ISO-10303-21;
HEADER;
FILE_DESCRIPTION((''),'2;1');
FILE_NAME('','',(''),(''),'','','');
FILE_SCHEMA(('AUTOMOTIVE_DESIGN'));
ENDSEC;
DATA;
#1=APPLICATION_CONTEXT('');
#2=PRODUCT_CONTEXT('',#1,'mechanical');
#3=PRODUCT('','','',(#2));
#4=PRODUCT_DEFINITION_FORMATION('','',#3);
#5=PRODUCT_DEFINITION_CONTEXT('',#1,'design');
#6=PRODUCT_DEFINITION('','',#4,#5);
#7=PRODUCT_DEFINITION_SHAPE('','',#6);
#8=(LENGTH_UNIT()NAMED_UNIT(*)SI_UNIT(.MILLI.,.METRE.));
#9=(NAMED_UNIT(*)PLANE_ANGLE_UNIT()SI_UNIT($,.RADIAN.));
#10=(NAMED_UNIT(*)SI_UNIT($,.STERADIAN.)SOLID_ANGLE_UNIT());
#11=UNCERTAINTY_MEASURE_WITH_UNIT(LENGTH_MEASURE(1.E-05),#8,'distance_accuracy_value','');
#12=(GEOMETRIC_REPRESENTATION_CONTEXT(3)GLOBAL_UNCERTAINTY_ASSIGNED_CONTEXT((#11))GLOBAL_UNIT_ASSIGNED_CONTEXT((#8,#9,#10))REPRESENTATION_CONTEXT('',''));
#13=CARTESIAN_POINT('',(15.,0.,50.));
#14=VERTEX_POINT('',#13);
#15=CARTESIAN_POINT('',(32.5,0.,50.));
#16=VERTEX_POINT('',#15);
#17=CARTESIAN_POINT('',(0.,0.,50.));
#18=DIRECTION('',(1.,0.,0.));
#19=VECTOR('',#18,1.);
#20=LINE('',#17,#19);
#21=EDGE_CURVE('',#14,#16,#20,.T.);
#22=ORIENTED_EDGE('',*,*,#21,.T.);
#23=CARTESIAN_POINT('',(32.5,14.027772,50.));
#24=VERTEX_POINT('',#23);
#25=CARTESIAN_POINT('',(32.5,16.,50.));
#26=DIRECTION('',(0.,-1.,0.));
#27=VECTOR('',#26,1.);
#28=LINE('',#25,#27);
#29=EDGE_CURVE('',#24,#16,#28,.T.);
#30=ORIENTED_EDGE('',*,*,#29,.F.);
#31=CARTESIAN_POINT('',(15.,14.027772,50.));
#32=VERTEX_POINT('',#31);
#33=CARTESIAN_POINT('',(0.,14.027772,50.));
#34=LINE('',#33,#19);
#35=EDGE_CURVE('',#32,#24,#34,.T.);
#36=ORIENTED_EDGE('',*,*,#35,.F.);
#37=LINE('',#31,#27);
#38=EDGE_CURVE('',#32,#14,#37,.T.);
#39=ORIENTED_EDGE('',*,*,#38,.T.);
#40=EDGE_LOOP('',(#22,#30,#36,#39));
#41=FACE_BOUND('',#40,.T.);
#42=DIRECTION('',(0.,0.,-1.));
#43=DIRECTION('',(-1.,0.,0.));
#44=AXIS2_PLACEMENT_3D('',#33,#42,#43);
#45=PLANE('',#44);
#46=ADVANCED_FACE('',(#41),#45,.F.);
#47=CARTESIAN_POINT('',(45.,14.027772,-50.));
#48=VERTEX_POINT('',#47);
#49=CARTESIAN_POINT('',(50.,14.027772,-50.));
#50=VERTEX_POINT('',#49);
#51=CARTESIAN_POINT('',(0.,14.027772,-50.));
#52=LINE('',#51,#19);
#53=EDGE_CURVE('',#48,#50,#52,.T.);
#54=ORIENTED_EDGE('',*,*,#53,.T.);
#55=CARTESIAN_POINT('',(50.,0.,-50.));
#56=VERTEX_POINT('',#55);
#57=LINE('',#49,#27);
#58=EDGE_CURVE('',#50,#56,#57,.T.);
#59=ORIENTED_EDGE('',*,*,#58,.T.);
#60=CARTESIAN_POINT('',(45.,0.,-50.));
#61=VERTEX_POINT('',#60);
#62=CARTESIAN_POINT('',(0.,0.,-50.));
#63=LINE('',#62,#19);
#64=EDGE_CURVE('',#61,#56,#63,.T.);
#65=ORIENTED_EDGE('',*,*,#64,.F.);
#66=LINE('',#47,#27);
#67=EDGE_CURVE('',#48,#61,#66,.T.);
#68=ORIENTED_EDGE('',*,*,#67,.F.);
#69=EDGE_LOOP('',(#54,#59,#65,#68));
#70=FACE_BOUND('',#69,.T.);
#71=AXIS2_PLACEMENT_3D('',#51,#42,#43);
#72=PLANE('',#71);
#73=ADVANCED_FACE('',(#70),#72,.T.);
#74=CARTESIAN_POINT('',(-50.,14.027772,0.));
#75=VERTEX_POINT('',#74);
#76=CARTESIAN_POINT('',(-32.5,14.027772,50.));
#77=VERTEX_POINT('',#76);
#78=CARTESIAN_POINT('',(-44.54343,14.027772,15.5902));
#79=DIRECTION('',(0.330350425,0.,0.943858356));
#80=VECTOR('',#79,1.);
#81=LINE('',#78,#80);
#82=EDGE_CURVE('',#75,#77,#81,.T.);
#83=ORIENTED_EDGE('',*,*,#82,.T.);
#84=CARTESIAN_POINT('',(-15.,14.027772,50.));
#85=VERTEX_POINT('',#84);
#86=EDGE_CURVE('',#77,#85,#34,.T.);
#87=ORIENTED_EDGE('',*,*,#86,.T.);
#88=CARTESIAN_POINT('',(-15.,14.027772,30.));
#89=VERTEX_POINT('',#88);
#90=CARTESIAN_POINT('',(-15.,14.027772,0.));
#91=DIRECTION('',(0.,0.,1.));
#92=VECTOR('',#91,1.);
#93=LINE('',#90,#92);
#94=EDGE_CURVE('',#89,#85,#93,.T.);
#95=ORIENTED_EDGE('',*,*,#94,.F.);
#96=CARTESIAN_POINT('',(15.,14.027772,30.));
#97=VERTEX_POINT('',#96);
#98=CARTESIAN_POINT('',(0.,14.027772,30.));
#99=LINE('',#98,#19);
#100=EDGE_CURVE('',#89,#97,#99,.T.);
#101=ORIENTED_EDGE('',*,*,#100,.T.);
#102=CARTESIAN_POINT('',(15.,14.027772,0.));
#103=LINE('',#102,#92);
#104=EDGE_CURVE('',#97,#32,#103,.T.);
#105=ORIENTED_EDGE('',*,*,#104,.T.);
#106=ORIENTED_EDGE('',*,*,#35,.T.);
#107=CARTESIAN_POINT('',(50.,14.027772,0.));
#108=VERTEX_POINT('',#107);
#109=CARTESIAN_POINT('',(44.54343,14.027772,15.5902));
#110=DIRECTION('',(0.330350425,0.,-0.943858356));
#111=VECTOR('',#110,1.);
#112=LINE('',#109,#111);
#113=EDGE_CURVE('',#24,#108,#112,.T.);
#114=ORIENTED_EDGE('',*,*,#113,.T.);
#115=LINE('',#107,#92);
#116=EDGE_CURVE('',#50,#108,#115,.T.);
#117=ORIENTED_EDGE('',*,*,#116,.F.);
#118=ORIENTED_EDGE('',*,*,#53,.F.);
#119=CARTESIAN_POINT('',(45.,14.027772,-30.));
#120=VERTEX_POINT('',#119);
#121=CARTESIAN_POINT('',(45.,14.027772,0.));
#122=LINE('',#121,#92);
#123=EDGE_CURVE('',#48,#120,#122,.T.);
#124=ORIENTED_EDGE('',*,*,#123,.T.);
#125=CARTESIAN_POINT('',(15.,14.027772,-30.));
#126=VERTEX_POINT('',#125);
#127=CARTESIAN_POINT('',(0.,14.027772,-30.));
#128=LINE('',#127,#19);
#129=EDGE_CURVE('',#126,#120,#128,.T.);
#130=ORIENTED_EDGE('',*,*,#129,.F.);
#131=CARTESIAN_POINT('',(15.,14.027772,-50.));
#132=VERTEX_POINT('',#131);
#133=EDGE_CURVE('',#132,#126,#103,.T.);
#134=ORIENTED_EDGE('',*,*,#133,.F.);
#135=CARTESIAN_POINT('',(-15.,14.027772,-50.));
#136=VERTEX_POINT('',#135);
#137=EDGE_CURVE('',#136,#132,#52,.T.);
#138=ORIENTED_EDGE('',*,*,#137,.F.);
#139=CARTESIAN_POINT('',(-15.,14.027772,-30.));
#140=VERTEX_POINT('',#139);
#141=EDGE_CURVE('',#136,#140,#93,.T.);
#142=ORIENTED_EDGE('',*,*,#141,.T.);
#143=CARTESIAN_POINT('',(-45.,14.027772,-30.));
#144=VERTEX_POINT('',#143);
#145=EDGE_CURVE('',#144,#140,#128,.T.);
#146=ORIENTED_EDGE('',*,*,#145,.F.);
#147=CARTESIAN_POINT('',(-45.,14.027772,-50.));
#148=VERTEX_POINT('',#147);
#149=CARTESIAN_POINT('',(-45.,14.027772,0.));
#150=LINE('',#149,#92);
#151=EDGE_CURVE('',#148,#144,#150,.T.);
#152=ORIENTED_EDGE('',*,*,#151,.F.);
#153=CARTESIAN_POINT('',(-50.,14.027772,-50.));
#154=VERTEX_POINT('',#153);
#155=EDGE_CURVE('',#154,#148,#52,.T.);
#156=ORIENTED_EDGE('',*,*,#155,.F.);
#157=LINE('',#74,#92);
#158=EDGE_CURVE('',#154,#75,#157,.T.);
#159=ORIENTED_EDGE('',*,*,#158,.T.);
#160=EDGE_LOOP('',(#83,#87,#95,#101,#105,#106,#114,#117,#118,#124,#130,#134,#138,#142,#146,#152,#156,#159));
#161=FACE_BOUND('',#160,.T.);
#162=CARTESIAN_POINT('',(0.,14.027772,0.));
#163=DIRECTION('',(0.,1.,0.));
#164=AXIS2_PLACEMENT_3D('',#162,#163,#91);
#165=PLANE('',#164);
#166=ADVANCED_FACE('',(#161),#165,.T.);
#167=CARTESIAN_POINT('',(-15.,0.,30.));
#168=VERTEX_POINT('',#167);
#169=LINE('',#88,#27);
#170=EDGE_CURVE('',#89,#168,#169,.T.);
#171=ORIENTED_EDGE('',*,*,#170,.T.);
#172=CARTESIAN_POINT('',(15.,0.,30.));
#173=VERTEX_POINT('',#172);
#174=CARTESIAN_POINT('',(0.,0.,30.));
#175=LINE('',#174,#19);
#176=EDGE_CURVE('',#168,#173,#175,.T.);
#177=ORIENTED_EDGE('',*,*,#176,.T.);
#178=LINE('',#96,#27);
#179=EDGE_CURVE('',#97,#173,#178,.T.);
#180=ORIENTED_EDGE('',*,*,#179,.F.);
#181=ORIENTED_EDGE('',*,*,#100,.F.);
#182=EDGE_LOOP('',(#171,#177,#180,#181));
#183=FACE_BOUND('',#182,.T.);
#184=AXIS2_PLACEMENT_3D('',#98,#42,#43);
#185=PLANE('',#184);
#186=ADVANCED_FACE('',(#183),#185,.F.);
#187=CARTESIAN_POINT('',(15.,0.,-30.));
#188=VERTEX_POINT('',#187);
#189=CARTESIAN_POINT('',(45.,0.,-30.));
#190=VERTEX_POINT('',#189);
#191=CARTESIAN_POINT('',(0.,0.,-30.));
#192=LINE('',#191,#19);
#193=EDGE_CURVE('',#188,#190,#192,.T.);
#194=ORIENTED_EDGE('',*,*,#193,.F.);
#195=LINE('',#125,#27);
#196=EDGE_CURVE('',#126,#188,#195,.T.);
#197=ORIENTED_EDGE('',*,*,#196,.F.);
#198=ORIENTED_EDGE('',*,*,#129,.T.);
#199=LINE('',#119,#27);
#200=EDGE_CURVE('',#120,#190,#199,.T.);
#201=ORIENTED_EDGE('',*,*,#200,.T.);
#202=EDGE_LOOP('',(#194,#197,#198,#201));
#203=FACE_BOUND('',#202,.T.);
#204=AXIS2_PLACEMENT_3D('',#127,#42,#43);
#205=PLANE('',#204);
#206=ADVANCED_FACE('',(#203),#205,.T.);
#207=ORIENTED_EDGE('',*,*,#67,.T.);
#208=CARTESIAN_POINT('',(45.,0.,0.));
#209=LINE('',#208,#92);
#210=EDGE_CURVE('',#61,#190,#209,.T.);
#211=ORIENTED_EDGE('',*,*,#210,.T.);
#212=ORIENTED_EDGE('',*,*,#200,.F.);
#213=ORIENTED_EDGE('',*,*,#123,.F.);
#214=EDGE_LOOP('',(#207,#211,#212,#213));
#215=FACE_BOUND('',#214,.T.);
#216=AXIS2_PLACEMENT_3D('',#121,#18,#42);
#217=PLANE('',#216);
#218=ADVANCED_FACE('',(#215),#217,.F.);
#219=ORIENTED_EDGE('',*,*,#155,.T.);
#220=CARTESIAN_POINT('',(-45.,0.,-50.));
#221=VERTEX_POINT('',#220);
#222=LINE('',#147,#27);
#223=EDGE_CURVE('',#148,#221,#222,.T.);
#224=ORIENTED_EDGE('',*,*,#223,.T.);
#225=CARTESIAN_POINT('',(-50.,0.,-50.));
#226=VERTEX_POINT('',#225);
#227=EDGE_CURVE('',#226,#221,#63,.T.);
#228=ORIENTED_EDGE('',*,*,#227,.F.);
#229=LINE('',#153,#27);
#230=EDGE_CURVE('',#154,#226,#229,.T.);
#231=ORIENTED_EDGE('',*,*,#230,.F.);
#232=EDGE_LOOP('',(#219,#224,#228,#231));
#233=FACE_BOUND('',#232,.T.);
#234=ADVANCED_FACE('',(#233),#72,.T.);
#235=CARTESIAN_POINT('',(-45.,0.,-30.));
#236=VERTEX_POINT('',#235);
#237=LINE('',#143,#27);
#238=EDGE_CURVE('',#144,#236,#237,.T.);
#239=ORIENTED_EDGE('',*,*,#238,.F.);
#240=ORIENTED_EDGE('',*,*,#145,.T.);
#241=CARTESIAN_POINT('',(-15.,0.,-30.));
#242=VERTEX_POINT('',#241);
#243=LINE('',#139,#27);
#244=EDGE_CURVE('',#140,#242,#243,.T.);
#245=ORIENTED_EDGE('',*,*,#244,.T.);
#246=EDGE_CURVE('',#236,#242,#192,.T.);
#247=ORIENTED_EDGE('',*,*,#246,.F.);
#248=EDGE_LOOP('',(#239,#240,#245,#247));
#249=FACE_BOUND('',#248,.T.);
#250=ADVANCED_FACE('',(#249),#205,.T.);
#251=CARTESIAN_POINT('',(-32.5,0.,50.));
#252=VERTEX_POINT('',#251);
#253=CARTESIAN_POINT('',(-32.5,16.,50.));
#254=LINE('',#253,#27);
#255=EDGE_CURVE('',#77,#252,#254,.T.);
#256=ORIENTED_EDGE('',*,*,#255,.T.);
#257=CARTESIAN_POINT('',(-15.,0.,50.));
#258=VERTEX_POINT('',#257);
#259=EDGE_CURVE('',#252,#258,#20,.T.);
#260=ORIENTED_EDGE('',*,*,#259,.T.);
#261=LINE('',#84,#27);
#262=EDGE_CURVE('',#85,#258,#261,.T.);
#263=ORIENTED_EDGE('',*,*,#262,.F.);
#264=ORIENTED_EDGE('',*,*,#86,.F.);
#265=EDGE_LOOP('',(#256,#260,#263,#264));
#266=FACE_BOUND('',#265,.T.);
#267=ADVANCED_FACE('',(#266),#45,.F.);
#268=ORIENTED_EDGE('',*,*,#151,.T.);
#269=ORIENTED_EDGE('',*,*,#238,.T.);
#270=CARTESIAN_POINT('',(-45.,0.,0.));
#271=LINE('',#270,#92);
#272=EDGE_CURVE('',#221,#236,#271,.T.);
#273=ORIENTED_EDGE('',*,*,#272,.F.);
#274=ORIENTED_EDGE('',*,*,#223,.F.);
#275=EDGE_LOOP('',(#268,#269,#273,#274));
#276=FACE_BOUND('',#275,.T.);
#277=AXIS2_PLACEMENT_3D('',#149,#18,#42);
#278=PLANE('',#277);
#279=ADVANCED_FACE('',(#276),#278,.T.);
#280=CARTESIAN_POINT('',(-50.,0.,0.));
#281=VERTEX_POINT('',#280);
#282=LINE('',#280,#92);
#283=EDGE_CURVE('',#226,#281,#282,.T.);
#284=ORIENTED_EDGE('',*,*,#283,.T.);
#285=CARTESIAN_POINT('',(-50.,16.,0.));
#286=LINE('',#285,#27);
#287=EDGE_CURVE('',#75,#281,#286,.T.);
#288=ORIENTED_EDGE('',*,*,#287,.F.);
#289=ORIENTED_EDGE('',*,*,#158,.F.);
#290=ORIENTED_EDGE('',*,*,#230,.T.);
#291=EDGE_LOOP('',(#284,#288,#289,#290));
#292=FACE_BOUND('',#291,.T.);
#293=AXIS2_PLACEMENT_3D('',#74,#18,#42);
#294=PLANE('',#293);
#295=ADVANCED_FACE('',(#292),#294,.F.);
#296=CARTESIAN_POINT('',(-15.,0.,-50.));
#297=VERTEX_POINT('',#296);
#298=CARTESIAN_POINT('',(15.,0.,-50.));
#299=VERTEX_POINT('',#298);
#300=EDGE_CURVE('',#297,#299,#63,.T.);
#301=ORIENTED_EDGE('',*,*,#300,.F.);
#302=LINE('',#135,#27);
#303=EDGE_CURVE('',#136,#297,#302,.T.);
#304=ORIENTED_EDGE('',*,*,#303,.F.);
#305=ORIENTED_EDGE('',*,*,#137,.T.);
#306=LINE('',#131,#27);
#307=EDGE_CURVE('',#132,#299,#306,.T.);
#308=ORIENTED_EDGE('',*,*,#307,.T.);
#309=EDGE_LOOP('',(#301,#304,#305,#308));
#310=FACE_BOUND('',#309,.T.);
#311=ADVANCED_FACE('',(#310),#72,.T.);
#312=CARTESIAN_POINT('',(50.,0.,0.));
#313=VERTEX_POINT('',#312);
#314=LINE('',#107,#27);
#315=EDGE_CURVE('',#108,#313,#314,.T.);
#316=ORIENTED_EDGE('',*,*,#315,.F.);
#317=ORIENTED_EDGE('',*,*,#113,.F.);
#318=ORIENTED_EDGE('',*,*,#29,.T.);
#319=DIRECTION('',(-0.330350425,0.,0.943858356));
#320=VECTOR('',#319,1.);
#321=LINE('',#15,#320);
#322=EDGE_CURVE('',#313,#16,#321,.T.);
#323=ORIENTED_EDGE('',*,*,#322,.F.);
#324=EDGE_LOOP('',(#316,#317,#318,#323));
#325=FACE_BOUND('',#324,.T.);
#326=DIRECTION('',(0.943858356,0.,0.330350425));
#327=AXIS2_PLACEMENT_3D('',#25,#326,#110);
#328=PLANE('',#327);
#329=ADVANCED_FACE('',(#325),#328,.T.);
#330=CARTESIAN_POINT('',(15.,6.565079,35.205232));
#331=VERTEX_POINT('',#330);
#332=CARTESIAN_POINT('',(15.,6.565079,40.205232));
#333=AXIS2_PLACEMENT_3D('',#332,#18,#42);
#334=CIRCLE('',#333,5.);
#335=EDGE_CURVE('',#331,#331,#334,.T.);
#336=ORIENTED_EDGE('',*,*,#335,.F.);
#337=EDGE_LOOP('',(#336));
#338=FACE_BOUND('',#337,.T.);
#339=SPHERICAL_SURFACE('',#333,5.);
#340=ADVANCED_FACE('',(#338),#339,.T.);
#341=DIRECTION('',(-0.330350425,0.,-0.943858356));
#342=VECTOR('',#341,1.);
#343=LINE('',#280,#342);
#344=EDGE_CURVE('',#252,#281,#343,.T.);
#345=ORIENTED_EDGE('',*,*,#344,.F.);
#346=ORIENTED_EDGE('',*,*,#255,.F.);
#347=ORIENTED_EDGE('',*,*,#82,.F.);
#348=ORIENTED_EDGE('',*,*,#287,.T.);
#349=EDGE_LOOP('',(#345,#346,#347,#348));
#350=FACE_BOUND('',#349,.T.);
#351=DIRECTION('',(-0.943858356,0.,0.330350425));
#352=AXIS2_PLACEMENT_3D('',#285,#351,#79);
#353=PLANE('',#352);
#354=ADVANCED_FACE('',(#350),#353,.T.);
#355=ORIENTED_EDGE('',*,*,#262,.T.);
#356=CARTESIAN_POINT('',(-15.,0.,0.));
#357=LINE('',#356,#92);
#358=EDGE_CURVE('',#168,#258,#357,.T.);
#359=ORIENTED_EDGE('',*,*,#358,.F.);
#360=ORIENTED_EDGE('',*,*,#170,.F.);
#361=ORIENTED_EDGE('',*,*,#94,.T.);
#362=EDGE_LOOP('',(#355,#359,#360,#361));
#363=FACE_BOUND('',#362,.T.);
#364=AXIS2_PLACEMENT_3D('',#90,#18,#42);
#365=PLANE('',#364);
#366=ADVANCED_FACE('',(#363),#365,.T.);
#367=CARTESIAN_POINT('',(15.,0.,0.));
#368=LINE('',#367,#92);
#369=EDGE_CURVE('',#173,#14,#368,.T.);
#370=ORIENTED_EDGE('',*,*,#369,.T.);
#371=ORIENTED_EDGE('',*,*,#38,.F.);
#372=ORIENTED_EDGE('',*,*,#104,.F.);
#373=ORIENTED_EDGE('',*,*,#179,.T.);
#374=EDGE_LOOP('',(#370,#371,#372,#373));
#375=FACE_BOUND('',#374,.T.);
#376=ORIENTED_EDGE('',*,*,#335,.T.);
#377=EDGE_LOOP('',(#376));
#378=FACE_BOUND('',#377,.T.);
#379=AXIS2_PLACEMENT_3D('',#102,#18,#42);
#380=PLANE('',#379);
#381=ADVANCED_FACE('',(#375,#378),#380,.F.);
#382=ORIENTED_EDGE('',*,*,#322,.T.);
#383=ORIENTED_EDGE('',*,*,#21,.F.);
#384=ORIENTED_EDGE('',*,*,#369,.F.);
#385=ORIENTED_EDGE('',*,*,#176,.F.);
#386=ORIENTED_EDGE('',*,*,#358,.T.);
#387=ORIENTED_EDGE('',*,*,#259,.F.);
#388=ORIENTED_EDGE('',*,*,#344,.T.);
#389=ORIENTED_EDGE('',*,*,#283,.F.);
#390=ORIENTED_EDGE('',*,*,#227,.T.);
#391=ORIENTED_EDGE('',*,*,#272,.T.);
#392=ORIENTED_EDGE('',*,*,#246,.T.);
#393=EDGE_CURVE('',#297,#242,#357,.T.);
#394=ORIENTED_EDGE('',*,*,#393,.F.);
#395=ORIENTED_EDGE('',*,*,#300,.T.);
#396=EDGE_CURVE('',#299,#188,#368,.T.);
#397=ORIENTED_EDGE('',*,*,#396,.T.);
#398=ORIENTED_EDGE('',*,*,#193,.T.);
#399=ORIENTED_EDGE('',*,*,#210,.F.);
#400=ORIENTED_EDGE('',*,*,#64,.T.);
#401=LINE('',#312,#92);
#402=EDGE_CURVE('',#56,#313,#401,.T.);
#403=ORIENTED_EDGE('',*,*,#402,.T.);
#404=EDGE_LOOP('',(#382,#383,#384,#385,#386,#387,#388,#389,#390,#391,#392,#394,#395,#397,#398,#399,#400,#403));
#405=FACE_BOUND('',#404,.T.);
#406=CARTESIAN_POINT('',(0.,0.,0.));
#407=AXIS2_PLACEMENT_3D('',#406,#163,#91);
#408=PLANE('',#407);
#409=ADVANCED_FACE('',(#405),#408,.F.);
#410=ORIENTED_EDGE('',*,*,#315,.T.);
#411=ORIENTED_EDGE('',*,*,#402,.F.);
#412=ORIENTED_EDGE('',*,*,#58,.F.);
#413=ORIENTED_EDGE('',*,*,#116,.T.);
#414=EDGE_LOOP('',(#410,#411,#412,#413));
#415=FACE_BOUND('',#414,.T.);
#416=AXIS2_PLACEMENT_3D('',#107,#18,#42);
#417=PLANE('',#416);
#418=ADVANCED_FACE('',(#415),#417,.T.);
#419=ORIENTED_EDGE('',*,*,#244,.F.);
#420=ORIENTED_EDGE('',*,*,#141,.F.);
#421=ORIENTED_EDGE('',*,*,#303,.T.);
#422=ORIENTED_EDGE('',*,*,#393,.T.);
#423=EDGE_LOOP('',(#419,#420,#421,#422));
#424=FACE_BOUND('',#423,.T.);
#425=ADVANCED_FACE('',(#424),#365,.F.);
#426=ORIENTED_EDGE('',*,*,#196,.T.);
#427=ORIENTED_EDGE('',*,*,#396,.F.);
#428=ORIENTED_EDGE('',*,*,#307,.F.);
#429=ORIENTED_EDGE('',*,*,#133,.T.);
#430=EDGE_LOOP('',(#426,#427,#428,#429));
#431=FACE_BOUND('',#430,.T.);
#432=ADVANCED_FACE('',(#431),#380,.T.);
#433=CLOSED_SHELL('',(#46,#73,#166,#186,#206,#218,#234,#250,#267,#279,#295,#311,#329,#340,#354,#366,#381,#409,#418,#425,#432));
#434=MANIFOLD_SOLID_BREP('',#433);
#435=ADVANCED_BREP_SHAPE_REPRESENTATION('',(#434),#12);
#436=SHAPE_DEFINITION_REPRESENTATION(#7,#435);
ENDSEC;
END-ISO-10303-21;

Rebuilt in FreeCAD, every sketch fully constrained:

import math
import FreeCAD as App
import Part
import Sketcher

V = App.Vector
Q = App.Units.Quantity


def add_polygon(sketch, points):
    """Adds a closed chain of lines whose ends are joined by coincident constraints."""
    first, n = sketch.GeometryCount, len(points)
    for a, b in zip(points, points[1:] + points[:1]):
        sketch.addGeometry(Part.LineSegment(App.Vector(*a, 0), App.Vector(*b, 0)), False)
    for i in range(n):
        sketch.addConstraint(Sketcher.Constraint("Coincident", first + i, 2, first + (i + 1) % n, 1))

doc = App.newDocument("Part")
params = doc.addObject("Spreadsheet::Sheet", "Params")
for row, (alias, value) in enumerate([
    ("sketch1_width", "5 mm"),
    ("sketch1_width2", "35 mm"),
    ("sketch1_height", "100 mm"),
    ("sketch1_height2", "20 mm"),
    ("pad1_length", "14.027772 mm"),
    ("sketch2_radius", "5 mm"),
    ("revolution_angle", "360 deg"),
    ("sketch3_height", "50 mm"),
    ("sketch3_width", "17.5 mm"),
    ("pocket1_length", "16 mm"),
    ("sketch4_height", "50 mm"),
    ("sketch4_width", "17.5 mm"),
    ("pocket2_length", "16 mm"),
], start=1):
    params.set(f"A{row}", alias)
    params.set(f"B{row}", "=" + value)
    params.setAlias(f"B{row}", alias)

body = doc.addObject("PartDesign::Body", "Body")

sketch1 = body.newObject("Sketcher::SketchObject", "Sketch")
sketch1.AttachmentSupport = (doc.getObject("XZ_Plane"), [""])
sketch1.MapMode = "FlatFace"
add_polygon(sketch1, [(-45, -50), (-50, -50), (-50, 50), (-15, 50), (-15, 30), (15, 30), (15, 50), (50, 50), (50, -50), (45, -50), (45, -30), (15, -30), (15, -50), (-15, -50), (-15, -30), (-45, -30)])
sketch1.addConstraint([
    Sketcher.Constraint("Horizontal", 0),
    Sketcher.Constraint("Vertical", 1),
    Sketcher.Constraint("Horizontal", 2),
    Sketcher.Constraint("Vertical", 3),
    Sketcher.Constraint("Horizontal", 4),
    Sketcher.Constraint("Vertical", 5),
    Sketcher.Constraint("Horizontal", 6),
    Sketcher.Constraint("Vertical", 7),
    Sketcher.Constraint("Horizontal", 8),
    Sketcher.Constraint("Vertical", 9),
    Sketcher.Constraint("Horizontal", 10),
    Sketcher.Constraint("Vertical", 11),
    Sketcher.Constraint("Horizontal", 12),
    Sketcher.Constraint("Vertical", 13),
    Sketcher.Constraint("Horizontal", 14),
    Sketcher.Constraint("Vertical", 15),
    Sketcher.Constraint("Symmetric", 0, 2, 6, 2, -1, 1),
    Sketcher.Constraint("Symmetric", 3, 2, 10, 2, -1, 1),
    Sketcher.Constraint("Symmetric", 5, 2, 12, 2, -1, 1),
    Sketcher.Constraint("Symmetric", 2, 2, 5, 2, -2),
    Sketcher.Constraint("Symmetric", 9, 2, 14, 2, -2),
    Sketcher.Constraint("Horizontal", 0, 2, 7, 2),
    Sketcher.Constraint("Equal", 4, 10),
    Sketcher.Constraint("DistanceX", 0, 2, 0, 1, Q("5 mm")),
    Sketcher.Constraint("DistanceX", 2, 1, 2, 2, Q("35 mm")),
    Sketcher.Constraint("DistanceY", 1, 1, 1, 2, Q("100 mm")),
    Sketcher.Constraint("DistanceY", 3, 2, 3, 1, Q("20 mm")),
])
sketch1.setExpression("Constraints[39]", "Params.sketch1_width")
sketch1.setExpression("Constraints[40]", "Params.sketch1_width2")
sketch1.setExpression("Constraints[41]", "Params.sketch1_height")
sketch1.setExpression("Constraints[42]", "Params.sketch1_height2")
pad1 = body.newObject("PartDesign::Pad", "Pad")
pad1.Profile = sketch1
pad1.setExpression("Length", "Params.pad1_length")
pad1.Reversed = True

sketch2 = body.newObject("Sketcher::SketchObject", "Sketch001")
sketch2.AttachmentSupport = (doc.getObject("YZ_Plane"), [""])
sketch2.MapMode = "FlatFace"
sketch2.AttachmentOffset = App.Placement(V(0, 0, 15), App.Rotation())
sketch2.addGeometry([
    Part.LineSegment(V(2, 40, 0), V(12, 40, 0)),
    Part.ArcOfCircle(Part.Circle(V(7, 40, 0), V(0, 0, 1), 5), math.radians(180), math.radians(360)),
], False)
sketch2.addGeometry(Part.LineSegment(V(12, 40, 0), V(2, 40, 0)), True)
sketch2.addConstraint([
    Sketcher.Constraint("Coincident", 0, 1, 1, 1),
    Sketcher.Constraint("Coincident", 1, 2, 0, 2),
    Sketcher.Constraint("Horizontal", 0),
    Sketcher.Constraint("Horizontal", 2),
    Sketcher.Constraint("Coincident", 2, 1, 1, 2),
    Sketcher.Constraint("Horizontal", 1, 3, 0, 1),
    Sketcher.Constraint("Equal", 0, 2),
    Sketcher.Constraint("Radius", 1, Q("5 mm")),
    Sketcher.Constraint("DistanceX", -1, 1, 1, 3, Q("6.565079 mm")),
    Sketcher.Constraint("DistanceY", -1, 1, 1, 3, Q("40.205232 mm")),
])
sketch2.setExpression("Constraints[7]", "Params.sketch2_radius")
revolution = body.newObject("PartDesign::Revolution", "Revolution")
revolution.Profile = sketch2
revolution.ReferenceAxis = (sketch2, ["Axis0"])
revolution.setExpression("Angle", "Params.revolution_angle")

sketch3 = body.newObject("Sketcher::SketchObject", "Sketch002")
sketch3.AttachmentSupport = (doc.getObject("XZ_Plane"), [""])
sketch3.MapMode = "FlatFace"
add_polygon(sketch3, [(-32, 50), (-50, 0), (-50, 50)])
sketch3.addConstraint([
    Sketcher.Constraint("Vertical", 1),
    Sketcher.Constraint("Horizontal", 2),
    Sketcher.Constraint("PointOnObject", 0, 2, -1),
    Sketcher.Constraint("DistanceY", 1, 1, 1, 2, Q("50 mm")),
    Sketcher.Constraint("DistanceX", 2, 1, 2, 2, Q("17.5 mm")),
    Sketcher.Constraint("DistanceX", 0, 2, -1, 1, Q("50 mm")),
])
sketch3.setExpression("Constraints[6]", "Params.sketch3_height")
sketch3.setExpression("Constraints[7]", "Params.sketch3_width")
pocket1 = body.newObject("PartDesign::Pocket", "Pocket")
pocket1.Profile = sketch3
pocket1.setExpression("Length", "Params.pocket1_length")

sketch4 = body.newObject("Sketcher::SketchObject", "Sketch003")
sketch4.AttachmentSupport = (doc.getObject("XZ_Plane"), [""])
sketch4.MapMode = "FlatFace"
add_polygon(sketch4, [(50, 0), (32, 50), (50, 50)])
sketch4.addConstraint([
    Sketcher.Constraint("Horizontal", 1),
    Sketcher.Constraint("Vertical", 2),
    Sketcher.Constraint("PointOnObject", 2, 2, -1),
    Sketcher.Constraint("DistanceY", 2, 2, 2, 1, Q("50 mm")),
    Sketcher.Constraint("DistanceX", 1, 1, 1, 2, Q("17.5 mm")),
    Sketcher.Constraint("DistanceX", -1, 1, 1, 2, Q("50 mm")),
])
sketch4.setExpression("Constraints[6]", "Params.sketch4_height")
sketch4.setExpression("Constraints[7]", "Params.sketch4_width")
pocket2 = body.newObject("PartDesign::Pocket", "Pocket001")
pocket2.Profile = sketch4
pocket2.setExpression("Length", "Params.pocket2_length")

doc.recompute()
